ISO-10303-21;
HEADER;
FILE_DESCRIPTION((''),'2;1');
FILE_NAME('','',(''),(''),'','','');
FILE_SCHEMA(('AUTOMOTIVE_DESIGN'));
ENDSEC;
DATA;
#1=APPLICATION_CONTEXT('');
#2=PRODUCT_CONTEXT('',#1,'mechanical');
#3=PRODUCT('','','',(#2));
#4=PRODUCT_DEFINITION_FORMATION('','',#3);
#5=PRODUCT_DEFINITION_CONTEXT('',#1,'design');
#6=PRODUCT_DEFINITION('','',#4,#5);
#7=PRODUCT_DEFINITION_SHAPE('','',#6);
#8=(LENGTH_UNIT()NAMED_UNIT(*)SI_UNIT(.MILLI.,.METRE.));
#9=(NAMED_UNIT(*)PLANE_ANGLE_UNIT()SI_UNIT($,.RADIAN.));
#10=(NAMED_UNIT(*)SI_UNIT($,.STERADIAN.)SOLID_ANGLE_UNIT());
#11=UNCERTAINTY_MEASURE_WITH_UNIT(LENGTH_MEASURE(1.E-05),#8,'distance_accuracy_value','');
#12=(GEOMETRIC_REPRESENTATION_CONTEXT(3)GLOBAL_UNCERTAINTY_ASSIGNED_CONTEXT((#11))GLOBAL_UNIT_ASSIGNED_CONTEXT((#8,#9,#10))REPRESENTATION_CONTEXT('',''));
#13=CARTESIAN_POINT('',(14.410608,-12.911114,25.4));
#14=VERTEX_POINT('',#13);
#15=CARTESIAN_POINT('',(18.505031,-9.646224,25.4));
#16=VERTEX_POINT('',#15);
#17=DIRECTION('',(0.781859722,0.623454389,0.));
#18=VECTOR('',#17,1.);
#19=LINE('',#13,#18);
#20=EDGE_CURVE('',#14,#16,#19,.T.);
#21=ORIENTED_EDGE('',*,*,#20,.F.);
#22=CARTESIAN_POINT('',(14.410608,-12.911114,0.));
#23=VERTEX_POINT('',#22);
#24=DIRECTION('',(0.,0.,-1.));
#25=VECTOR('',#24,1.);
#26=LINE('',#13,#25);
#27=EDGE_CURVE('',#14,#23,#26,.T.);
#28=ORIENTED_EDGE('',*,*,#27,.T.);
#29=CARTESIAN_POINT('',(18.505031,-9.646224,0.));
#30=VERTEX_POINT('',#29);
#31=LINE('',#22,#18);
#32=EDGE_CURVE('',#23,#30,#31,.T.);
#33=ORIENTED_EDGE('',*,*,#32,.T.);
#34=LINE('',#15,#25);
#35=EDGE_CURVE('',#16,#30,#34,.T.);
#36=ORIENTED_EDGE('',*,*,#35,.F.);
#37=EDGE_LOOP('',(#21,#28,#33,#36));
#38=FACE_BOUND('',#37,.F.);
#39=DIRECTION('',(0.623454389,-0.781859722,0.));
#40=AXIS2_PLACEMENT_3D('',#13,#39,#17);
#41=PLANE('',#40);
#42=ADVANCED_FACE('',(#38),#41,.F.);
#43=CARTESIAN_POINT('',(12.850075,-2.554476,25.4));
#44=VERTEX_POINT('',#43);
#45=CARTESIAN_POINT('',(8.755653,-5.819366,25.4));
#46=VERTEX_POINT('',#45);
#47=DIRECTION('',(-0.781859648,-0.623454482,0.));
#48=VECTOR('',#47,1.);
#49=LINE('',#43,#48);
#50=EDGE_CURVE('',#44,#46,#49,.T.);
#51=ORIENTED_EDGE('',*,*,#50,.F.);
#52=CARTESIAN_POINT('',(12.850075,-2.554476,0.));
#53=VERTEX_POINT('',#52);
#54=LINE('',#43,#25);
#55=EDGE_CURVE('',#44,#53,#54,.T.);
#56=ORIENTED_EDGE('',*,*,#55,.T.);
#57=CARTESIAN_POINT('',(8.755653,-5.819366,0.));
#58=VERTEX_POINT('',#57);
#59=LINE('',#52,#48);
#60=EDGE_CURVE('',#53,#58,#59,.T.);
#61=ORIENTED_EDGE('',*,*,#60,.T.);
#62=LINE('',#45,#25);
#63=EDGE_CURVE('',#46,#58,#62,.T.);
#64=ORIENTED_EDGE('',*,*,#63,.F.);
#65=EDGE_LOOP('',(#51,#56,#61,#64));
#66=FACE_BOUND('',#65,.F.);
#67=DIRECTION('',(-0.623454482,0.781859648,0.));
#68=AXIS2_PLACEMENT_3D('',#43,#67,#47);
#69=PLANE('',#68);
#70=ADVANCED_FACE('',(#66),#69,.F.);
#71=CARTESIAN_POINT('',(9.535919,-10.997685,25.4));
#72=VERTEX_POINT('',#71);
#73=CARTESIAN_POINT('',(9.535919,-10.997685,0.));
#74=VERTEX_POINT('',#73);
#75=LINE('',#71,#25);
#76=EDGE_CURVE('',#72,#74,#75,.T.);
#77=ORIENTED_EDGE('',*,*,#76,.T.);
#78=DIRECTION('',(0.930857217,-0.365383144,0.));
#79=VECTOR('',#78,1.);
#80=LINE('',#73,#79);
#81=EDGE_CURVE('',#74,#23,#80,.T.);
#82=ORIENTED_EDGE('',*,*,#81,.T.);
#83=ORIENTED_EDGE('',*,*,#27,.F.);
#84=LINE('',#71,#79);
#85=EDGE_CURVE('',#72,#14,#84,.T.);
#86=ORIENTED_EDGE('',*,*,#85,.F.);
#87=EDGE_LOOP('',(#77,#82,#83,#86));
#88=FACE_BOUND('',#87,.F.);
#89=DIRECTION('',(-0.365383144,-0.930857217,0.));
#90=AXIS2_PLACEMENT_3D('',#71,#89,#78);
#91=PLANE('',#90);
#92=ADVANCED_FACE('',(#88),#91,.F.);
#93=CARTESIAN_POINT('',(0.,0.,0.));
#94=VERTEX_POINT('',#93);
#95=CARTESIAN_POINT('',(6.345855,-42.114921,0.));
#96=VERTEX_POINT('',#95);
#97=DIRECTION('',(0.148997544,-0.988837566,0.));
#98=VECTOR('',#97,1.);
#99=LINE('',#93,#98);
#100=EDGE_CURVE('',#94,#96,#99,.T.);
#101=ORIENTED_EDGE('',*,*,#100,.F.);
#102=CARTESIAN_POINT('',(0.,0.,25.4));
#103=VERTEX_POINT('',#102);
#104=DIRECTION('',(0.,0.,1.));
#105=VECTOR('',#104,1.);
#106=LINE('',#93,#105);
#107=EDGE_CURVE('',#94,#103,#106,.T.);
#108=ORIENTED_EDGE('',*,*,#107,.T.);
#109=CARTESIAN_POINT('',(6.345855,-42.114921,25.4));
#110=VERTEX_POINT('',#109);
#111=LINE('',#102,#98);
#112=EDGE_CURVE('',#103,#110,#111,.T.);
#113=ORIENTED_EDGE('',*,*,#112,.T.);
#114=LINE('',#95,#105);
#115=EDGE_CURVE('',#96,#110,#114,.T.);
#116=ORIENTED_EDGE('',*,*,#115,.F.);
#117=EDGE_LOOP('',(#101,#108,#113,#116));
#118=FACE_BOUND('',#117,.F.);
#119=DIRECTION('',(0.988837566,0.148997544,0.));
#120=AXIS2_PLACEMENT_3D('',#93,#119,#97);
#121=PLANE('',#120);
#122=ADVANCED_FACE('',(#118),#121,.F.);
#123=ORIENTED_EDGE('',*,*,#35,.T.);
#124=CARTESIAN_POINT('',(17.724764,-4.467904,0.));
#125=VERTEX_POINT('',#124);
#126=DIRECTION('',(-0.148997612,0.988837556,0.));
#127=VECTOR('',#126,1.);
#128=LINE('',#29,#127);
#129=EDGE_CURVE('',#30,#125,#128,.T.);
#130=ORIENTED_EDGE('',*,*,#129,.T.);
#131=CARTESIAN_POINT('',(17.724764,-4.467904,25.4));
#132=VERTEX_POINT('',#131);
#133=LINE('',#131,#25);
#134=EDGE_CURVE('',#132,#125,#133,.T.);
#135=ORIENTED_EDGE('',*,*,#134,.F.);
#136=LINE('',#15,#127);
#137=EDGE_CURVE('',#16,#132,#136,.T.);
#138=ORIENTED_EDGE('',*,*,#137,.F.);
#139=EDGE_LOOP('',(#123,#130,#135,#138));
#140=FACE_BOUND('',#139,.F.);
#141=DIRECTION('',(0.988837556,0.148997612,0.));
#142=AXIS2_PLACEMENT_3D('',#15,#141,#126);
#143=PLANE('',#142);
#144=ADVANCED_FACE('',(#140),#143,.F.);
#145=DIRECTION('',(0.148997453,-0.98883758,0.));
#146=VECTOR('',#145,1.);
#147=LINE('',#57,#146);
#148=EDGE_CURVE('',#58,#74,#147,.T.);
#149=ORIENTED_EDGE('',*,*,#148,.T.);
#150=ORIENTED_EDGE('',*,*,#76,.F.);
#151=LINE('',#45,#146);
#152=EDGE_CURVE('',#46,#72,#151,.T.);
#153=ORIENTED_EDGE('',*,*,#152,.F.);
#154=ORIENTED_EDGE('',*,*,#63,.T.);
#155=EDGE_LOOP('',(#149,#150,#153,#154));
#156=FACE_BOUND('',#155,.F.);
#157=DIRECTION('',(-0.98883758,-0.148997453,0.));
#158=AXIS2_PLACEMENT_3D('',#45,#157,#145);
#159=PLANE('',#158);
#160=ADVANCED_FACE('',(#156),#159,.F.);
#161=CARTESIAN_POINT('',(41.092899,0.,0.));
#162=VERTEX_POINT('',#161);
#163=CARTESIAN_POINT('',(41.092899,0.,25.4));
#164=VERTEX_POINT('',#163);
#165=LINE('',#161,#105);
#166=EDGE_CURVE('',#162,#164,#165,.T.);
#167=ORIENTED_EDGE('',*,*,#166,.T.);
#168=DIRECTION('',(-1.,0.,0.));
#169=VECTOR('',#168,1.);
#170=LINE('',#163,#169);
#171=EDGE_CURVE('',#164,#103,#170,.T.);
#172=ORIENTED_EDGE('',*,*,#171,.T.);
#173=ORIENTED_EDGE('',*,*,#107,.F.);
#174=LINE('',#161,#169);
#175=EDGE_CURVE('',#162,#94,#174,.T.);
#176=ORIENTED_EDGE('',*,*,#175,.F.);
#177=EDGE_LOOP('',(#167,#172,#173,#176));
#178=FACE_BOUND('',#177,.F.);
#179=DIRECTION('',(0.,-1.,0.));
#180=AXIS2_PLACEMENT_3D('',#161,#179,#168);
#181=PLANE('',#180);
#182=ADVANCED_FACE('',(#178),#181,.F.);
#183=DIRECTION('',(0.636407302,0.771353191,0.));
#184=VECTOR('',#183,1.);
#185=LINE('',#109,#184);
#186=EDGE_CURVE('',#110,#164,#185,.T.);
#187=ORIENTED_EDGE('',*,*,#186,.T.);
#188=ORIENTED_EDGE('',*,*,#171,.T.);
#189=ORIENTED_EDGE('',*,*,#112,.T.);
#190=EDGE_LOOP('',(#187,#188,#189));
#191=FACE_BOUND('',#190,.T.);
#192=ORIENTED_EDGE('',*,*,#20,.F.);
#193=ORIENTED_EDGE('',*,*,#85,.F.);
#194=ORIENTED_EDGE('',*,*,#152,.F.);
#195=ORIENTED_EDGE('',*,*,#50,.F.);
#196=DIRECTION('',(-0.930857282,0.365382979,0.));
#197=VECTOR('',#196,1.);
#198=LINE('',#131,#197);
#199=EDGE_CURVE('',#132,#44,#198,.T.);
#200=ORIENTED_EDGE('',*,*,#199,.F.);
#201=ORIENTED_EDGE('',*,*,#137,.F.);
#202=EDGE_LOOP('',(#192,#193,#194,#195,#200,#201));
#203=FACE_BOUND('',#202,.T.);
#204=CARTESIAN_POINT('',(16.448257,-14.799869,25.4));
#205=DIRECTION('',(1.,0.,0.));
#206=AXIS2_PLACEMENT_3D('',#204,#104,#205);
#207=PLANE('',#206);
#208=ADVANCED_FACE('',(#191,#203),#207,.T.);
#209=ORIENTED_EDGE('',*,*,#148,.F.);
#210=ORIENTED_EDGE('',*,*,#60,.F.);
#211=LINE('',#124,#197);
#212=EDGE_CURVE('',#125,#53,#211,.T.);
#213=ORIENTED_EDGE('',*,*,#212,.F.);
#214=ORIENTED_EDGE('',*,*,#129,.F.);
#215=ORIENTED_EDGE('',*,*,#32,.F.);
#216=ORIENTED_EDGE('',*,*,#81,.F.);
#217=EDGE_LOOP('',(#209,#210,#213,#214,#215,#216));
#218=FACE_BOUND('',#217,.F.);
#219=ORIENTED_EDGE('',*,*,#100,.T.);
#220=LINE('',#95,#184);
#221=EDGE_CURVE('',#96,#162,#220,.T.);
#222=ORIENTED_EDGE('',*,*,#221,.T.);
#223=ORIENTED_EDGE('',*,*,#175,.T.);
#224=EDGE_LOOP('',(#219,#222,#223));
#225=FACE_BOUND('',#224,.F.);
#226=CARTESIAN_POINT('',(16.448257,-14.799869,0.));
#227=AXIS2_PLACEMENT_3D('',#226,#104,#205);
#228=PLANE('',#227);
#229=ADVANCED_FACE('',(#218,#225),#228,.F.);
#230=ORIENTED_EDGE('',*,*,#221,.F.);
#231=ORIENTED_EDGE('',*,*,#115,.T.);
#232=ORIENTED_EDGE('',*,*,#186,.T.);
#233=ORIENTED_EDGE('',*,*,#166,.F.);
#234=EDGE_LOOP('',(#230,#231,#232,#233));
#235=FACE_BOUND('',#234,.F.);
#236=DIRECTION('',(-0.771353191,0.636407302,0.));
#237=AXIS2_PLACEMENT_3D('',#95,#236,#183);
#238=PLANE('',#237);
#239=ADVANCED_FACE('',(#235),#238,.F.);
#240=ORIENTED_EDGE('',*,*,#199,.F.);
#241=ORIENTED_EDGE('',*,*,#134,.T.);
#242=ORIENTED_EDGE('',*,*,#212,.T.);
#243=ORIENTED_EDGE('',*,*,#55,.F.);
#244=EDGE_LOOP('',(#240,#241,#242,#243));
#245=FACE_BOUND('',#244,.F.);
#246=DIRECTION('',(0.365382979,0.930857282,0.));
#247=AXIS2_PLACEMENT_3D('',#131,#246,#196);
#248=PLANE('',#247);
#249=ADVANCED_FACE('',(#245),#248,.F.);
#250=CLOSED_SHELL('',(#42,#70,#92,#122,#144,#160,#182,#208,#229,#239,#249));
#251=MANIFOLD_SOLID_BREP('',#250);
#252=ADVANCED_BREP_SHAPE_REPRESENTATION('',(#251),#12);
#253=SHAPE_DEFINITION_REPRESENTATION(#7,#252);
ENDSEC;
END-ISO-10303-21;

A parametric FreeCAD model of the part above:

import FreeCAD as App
import Part
import Sketcher
Q = App.Units.Quantity


def add_polygon(sketch, points):
    """Adds a closed chain of lines whose ends are joined by coincident constraints."""
    first, n = sketch.GeometryCount, len(points)
    for a, b in zip(points, points[1:] + points[:1]):
        sketch.addGeometry(Part.LineSegment(App.Vector(*a, 0), App.Vector(*b, 0)), False)
    for i in range(n):
        sketch.addConstraint(Sketcher.Constraint("Coincident", first + i, 2, first + (i + 1) % n, 1))

doc = App.newDocument("Part")
params = doc.addObject("Spreadsheet::Sheet", "Params")
for row, (alias, value) in enumerate([
    ("pad1_length", "1 in"),
    ("pocket1_length", "1 in"),
], start=1):
    params.set(f"A{row}", alias)
    params.set(f"B{row}", "=" + value)
    params.setAlias(f"B{row}", alias)

body = doc.addObject("PartDesign::Body", "Body")

sketch1 = body.newObject("Sketcher::SketchObject", "Sketch")
sketch1.AttachmentSupport = (doc.getObject("XY_Plane"), [""])
sketch1.MapMode = "FlatFace"
add_polygon(sketch1, [(41, 0), (0, 0), (6, -42)])
sketch1.addConstraint(Sketcher.Constraint("Horizontal", 0))
sketch1.addConstraint(Sketcher.Constraint("Coincident", 0, 2, -1, 1))
sketch1.addConstraint(Sketcher.Constraint("DistanceX", 0, 2, 0, 1, Q("41.092899 mm")))
sketch1.addConstraint(Sketcher.Constraint("Distance", 2, Q("54.598751 mm")))
sketch1.addConstraint(Sketcher.Constraint("DistanceY", 1, 2, -1, 1, Q("42.114921 mm")))
pad1 = body.newObject("PartDesign::Pad", "Pad")
pad1.Profile = sketch1
pad1.setExpression("Length", "Params.pad1_length")

sketch2 = body.newObject("Sketcher::SketchObject", "Sketch001")
sketch2.AttachmentSupport = (doc.getObject("XY_Plane"), [""])
sketch2.MapMode = "FlatFace"
sketch2.AttachmentOffset = App.Placement(App.Vector(0, 0, 1 * 25.4), App.Rotation())
add_polygon(sketch2, [(19, -10), (18, -4), (13, -3), (9, -6), (10, -11), (14, -13)])
sketch2.addConstraint(Sketcher.Constraint("Parallel", 0, 3))
sketch2.addConstraint(Sketcher.Constraint("Parallel", 1, 4))
sketch2.addConstraint(Sketcher.Constraint("Parallel", 2, 5))
sketch2.addConstraint(Sketcher.Constraint("Equal", 0, 1))
sketch2.addConstraint(Sketcher.Constraint("Equal", 1, 2))
sketch2.addConstraint(Sketcher.Constraint("Equal", 2, 3))
sketch2.addConstraint(Sketcher.Constraint("DistanceX", -1, 1, 3, 2, Q("9.535919 mm")))
sketch2.addConstraint(Sketcher.Constraint("DistanceX", -1, 1, 5, 2, Q("18.505031 mm")))
sketch2.addConstraint(Sketcher.Constraint("DistanceX", 1, 2, 0, 2, Q("4.874689 mm")))
sketch2.addConstraint(Sketcher.Constraint("DistanceY", 2, 2, 1, 2, Q("3.26489 mm")))
sketch2.addConstraint(Sketcher.Constraint("DistanceY", 3, 2, 2, 2, Q("5.178319 mm")))
sketch2.addConstraint(Sketcher.Constraint("DistanceY", 0, 2, -1, 1, Q("4.467904 mm")))
pocket1 = body.newObject("PartDesign::Pocket", "Pocket")
pocket1.Profile = sketch2
pocket1.setExpression("Length", "Params.pocket1_length")

doc.recompute()
